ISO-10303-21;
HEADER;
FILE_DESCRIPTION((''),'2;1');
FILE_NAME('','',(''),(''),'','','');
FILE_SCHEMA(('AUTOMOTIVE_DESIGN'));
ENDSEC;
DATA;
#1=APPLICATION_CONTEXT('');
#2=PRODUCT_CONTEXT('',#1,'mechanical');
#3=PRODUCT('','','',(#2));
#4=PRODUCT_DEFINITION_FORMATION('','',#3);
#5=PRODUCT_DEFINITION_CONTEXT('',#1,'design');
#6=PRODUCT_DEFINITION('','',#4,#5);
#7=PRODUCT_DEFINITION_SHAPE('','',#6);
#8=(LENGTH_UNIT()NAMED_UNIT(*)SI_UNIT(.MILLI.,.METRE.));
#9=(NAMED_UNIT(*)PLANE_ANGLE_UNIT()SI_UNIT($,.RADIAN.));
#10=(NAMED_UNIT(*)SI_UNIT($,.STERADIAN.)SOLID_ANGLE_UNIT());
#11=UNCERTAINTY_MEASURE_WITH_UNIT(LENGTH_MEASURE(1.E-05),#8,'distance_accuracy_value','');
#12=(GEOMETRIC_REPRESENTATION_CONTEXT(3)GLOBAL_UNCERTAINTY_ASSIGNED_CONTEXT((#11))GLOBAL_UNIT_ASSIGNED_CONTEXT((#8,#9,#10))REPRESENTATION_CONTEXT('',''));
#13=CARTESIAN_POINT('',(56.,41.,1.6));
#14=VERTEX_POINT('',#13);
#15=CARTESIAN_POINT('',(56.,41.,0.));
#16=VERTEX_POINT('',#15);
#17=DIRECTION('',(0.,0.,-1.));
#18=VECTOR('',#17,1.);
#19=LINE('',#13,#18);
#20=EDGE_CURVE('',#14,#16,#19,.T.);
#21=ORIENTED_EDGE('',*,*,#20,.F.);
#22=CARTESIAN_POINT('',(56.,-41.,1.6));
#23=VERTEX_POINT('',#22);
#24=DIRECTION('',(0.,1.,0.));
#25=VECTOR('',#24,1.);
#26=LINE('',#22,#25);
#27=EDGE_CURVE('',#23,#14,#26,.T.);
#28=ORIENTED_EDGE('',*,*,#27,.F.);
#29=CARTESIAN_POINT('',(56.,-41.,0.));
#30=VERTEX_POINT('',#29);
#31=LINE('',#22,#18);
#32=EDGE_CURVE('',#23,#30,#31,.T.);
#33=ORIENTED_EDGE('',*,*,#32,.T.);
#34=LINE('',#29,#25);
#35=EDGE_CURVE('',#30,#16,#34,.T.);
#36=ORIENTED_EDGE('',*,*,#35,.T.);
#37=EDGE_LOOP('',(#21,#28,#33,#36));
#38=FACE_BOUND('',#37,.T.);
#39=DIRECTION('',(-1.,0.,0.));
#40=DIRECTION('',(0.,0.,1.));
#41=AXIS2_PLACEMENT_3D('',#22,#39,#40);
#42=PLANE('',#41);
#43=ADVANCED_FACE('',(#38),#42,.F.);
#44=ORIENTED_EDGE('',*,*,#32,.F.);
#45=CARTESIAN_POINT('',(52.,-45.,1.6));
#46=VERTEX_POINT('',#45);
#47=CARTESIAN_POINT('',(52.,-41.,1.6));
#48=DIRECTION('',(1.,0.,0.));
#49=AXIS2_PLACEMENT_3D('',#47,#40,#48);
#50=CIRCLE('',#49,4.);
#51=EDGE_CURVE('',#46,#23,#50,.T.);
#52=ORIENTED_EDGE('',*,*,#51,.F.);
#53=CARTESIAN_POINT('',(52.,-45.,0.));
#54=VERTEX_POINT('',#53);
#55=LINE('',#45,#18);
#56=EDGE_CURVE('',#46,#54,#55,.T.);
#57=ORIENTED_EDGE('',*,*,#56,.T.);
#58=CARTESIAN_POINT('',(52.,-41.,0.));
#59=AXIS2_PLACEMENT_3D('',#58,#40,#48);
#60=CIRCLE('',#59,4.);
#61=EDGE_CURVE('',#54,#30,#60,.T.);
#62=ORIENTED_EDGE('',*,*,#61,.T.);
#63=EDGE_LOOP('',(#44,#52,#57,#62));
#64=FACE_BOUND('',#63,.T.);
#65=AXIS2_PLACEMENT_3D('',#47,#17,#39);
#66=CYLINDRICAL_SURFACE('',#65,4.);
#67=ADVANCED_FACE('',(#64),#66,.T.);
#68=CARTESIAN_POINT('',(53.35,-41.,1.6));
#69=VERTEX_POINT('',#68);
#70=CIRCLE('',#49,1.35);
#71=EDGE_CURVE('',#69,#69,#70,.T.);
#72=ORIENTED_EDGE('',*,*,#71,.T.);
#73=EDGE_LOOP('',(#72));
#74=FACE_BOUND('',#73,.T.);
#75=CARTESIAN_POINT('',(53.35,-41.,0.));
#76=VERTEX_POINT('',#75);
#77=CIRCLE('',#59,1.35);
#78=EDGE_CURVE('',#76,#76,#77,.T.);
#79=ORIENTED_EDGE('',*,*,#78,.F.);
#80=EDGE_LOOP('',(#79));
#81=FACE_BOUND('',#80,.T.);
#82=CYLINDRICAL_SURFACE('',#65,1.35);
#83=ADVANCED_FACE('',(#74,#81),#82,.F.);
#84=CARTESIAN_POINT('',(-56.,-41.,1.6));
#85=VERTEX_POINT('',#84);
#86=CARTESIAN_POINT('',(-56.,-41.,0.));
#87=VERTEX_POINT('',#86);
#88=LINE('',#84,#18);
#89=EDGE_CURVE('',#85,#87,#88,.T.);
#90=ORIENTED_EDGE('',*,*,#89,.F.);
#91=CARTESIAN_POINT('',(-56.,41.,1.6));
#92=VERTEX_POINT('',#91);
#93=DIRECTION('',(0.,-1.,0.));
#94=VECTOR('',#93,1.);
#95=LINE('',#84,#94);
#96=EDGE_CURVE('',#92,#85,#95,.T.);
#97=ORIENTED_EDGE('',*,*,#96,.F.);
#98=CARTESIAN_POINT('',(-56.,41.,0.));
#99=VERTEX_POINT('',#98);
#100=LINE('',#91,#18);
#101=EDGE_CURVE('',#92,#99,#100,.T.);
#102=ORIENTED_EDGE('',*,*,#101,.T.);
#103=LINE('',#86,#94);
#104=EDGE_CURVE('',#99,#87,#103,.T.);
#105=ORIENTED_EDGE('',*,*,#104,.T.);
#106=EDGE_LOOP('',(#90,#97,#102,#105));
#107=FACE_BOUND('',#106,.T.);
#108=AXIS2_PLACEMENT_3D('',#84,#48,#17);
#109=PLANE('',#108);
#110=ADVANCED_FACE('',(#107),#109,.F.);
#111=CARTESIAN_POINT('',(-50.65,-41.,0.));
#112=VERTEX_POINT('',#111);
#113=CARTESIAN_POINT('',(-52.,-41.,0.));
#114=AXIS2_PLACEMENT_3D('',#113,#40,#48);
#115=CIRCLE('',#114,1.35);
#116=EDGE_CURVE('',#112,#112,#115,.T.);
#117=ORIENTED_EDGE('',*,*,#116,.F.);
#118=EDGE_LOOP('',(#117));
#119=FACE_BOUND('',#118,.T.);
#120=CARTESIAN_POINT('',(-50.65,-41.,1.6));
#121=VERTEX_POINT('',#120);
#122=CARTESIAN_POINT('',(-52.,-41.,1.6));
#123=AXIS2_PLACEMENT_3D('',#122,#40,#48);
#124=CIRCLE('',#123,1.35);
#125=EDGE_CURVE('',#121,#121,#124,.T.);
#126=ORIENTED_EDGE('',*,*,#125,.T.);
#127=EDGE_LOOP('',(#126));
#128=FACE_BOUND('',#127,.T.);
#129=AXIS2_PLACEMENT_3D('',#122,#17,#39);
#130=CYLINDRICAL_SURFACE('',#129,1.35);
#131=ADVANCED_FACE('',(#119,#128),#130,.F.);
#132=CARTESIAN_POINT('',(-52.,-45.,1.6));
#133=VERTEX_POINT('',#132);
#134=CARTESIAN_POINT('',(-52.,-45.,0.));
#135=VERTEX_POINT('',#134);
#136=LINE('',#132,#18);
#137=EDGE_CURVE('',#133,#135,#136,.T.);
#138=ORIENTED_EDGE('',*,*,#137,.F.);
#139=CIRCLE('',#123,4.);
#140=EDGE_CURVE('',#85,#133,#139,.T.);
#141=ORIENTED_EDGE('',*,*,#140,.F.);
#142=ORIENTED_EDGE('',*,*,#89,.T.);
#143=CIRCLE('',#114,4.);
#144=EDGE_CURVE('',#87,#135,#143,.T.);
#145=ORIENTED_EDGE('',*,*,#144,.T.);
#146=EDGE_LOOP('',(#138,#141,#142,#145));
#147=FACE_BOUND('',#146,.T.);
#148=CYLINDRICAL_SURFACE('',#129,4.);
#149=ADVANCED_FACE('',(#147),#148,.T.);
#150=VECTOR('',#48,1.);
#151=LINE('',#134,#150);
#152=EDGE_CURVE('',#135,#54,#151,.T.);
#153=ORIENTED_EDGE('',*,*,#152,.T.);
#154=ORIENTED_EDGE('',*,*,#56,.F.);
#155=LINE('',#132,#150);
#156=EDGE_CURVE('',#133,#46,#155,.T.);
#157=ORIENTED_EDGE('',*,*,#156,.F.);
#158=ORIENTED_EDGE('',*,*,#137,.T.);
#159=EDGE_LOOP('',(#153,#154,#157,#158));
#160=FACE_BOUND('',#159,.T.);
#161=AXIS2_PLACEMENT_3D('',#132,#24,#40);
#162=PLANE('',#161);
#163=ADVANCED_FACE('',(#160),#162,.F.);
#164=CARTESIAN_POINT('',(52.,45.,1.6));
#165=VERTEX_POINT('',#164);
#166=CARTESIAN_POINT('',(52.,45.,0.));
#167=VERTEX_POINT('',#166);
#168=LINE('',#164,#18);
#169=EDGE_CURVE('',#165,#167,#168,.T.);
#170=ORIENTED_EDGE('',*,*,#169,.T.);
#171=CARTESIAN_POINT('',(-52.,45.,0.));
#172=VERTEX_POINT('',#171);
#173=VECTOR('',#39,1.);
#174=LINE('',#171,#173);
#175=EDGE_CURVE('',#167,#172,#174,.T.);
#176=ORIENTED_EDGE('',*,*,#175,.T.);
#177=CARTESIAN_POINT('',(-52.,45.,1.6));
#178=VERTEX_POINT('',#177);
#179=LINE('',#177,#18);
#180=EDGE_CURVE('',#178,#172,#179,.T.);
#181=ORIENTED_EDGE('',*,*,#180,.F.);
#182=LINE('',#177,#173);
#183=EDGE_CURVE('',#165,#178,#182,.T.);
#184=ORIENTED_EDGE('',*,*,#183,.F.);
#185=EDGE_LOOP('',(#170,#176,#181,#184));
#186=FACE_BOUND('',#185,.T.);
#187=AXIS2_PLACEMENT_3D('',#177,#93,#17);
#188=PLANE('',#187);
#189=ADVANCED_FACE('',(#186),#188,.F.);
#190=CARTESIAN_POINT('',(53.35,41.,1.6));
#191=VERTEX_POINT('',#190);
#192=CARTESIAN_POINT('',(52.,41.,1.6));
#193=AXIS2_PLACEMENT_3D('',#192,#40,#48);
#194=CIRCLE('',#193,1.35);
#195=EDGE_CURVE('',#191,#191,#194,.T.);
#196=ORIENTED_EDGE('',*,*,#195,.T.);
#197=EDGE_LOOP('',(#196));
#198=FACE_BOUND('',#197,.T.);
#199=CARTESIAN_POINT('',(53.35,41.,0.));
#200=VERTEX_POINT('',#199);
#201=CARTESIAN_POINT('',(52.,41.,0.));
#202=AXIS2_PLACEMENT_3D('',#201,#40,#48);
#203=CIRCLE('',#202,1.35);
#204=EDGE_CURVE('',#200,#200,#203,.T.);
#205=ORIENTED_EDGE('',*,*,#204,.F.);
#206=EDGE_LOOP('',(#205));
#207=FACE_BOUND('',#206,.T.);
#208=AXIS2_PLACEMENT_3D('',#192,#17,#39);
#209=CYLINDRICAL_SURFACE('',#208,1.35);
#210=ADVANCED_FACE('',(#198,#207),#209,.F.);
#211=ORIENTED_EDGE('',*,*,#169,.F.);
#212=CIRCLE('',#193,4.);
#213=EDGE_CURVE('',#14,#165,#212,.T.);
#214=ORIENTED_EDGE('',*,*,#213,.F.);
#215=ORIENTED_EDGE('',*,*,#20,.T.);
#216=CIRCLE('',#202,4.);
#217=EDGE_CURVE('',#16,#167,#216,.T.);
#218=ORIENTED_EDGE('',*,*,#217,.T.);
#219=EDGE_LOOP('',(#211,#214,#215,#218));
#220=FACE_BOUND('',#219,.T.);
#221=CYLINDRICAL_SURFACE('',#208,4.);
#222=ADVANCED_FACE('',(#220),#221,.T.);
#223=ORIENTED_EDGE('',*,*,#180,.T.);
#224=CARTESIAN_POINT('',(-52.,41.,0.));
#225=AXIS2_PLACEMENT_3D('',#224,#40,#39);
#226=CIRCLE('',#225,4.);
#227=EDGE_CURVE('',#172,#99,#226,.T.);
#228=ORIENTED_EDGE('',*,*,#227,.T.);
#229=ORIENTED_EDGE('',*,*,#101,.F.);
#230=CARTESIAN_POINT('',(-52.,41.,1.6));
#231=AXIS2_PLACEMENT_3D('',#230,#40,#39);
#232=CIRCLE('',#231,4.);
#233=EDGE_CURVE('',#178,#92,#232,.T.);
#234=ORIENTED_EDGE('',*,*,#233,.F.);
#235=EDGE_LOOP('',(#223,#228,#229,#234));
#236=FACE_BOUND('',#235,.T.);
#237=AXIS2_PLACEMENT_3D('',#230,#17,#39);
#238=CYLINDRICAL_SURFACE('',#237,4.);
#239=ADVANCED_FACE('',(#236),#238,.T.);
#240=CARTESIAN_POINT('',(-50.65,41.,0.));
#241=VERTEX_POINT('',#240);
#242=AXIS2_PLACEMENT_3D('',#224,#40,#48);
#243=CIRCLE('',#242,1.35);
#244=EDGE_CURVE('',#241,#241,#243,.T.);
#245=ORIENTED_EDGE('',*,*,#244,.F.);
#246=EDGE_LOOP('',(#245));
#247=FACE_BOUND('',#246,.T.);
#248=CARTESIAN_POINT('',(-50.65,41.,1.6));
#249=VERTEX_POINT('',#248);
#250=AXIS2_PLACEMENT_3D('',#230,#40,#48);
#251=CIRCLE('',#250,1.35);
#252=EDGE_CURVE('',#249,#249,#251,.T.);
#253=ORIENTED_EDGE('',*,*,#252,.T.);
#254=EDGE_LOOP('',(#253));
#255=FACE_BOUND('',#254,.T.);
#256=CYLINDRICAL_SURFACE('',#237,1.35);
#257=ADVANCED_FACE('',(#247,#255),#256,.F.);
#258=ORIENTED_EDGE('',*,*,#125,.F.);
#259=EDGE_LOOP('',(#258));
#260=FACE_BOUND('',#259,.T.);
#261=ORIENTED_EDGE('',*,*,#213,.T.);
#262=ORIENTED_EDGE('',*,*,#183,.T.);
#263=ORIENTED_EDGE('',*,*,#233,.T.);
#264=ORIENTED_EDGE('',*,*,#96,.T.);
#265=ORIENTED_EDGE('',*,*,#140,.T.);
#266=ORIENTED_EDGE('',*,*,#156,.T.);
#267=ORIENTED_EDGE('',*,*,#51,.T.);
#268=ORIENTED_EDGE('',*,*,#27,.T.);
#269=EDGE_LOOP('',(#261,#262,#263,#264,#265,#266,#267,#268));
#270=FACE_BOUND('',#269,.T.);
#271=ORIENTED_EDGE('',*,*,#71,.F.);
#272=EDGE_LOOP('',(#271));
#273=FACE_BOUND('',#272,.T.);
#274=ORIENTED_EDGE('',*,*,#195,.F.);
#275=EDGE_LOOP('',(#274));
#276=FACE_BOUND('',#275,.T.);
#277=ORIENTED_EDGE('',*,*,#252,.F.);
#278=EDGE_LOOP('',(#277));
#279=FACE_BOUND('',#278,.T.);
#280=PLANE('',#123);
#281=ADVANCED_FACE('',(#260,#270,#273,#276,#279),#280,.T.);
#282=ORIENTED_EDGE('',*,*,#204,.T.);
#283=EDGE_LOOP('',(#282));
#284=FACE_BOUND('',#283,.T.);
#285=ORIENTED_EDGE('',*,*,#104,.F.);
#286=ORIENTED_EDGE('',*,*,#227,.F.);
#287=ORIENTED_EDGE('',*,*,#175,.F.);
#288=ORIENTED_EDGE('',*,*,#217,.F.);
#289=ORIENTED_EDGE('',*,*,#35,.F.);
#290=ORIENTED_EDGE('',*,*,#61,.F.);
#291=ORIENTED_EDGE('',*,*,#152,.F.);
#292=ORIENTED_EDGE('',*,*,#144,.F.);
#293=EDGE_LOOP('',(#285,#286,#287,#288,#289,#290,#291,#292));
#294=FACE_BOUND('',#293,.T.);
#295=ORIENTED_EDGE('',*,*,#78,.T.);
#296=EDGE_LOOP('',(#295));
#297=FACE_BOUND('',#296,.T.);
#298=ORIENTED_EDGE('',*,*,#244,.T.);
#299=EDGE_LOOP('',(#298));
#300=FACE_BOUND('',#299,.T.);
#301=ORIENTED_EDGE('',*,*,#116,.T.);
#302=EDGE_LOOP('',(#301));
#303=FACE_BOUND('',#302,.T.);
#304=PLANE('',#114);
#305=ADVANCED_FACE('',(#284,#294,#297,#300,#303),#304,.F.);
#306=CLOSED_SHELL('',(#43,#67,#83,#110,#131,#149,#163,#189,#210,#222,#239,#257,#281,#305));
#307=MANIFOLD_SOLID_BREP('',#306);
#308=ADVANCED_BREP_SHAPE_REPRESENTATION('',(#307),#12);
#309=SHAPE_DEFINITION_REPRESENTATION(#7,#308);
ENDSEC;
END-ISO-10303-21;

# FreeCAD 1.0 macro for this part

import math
import FreeCAD as App
import Part
import Sketcher

V = App.Vector

doc = App.newDocument("Part")
params = doc.addObject("Spreadsheet::Sheet", "Params")
for row, (alias, value) in enumerate([
    ("sketch1_radius", "4 mm"),
    ("sketch1_diameter", "2.7 mm"),
    ("sketch1_width", "104 mm"),
    ("sketch1_height", "82 mm"),
    ("pad1_length", "1.6 mm"),
], start=1):
    params.set(f"A{row}", alias)
    params.set(f"B{row}", "=" + value)
    params.setAlias(f"B{row}", alias)

body = doc.addObject("PartDesign::Body", "Body")

sketch1 = body.newObject("Sketcher::SketchObject", "Sketch")
sketch1.AttachmentSupport = (doc.getObject("XY_Plane"), [""])
sketch1.MapMode = "FlatFace"
sketch1.addGeometry(Part.LineSegment(V(-52, -45, 0), V(52, -45, 0)), False)
sketch1.addGeometry(Part.ArcOfCircle(Part.Circle(V(52, -41, 0), V(0, 0, 1), 4), math.radians(-90), math.radians(0)), False)
sketch1.addGeometry(Part.LineSegment(V(56, -41, 0), V(56, 41, 0)), False)
sketch1.addGeometry(Part.ArcOfCircle(Part.Circle(V(52, 41, 0), V(0, 0, 1), 4), math.radians(0), math.radians(90)), False)
sketch1.addGeometry(Part.LineSegment(V(52, 45, 0), V(-52, 45, 0)), False)
sketch1.addGeometry(Part.ArcOfCircle(Part.Circle(V(-52, 41, 0), V(0, 0, 1), 4), math.radians(90), math.radians(180)), False)
sketch1.addGeometry(Part.LineSegment(V(-56, 41, 0), V(-56, -41, 0)), False)
sketch1.addGeometry(Part.ArcOfCircle(Part.Circle(V(-52, -41, 0), V(0, 0, 1), 4), math.radians(180), math.radians(270)), False)
sketch1.addGeometry(Part.Circle(V(-52, -41, 0), V(0, 0, 1), 1.4), False)
sketch1.addGeometry(Part.Circle(V(52, -41, 0), V(0, 0, 1), 1.4), False)
sketch1.addGeometry(Part.Circle(V(-52, 41, 0), V(0, 0, 1), 1.4), False)
sketch1.addGeometry(Part.Circle(V(52, 41, 0), V(0, 0, 1), 1.4), False)
sketch1.addConstraint(Sketcher.Constraint("Tangent", 0, 2, 1, 1))
sketch1.addConstraint(Sketcher.Constraint("Tangent", 1, 2, 2, 1))
sketch1.addConstraint(Sketcher.Constraint("Tangent", 2, 2, 3, 1))
sketch1.addConstraint(Sketcher.Constraint("Tangent", 3, 2, 4, 1))
sketch1.addConstraint(Sketcher.Constraint("Tangent", 4, 2, 5, 1))
sketch1.addConstraint(Sketcher.Constraint("Tangent", 5, 2, 6, 1))
sketch1.addConstraint(Sketcher.Constraint("Tangent", 6, 2, 7, 1))
sketch1.addConstraint(Sketcher.Constraint("Tangent", 7, 2, 0, 1))
sketch1.addConstraint(Sketcher.Constraint("Horizontal", 0))
sketch1.addConstraint(Sketcher.Constraint("Vertical", 2))
sketch1.addConstraint(Sketcher.Constraint("Horizontal", 4))
sketch1.addConstraint(Sketcher.Constraint("Vertical", 6))
sketch1.addConstraint(Sketcher.Constraint("Coincident", 8, 3, 7, 3))
sketch1.addConstraint(Sketcher.Constraint("Coincident", 9, 3, 1, 3))
sketch1.addConstraint(Sketcher.Constraint("Coincident", 10, 3, 5, 3))
sketch1.addConstraint(Sketcher.Constraint("Coincident", 11, 3, 3, 3))
sketch1.addConstraint(Sketcher.Constraint("Equal", 1, 3))
sketch1.addConstraint(Sketcher.Constraint("Equal", 3, 5))
sketch1.addConstraint(Sketcher.Constraint("Equal", 5, 7))
sketch1.addConstraint(Sketcher.Constraint("Equal", 8, 9))
sketch1.addConstraint(Sketcher.Constraint("Equal", 9, 10))
sketch1.addConstraint(Sketcher.Constraint("Equal", 10, 11))
sketch1.addConstraint(Sketcher.Constraint("Symmetric", 1, 3, 5, 3, -1, 1))
sketch1.addConstraint(Sketcher.Constraint("Radius", 1, 4.0))
sketch1.addConstraint(Sketcher.Constraint("Diameter", 8, 2.7))
sketch1.addConstraint(Sketcher.Constraint("DistanceX", 0, 1, 0, 2, 104.0))
sketch1.addConstraint(Sketcher.Constraint("DistanceY", 2, 1, 2, 2, 82.0))
sketch1.setExpression("Constraints[23]", "Params.sketch1_radius")
sketch1.setExpression("Constraints[24]", "Params.sketch1_diameter")
sketch1.setExpression("Constraints[25]", "Params.sketch1_width")
sketch1.setExpression("Constraints[26]", "Params.sketch1_height")
pad1 = body.newObject("PartDesign::Pad", "Pad")
pad1.Profile = sketch1
pad1.setExpression("Length", "Params.pad1_length")

doc.recompute()
